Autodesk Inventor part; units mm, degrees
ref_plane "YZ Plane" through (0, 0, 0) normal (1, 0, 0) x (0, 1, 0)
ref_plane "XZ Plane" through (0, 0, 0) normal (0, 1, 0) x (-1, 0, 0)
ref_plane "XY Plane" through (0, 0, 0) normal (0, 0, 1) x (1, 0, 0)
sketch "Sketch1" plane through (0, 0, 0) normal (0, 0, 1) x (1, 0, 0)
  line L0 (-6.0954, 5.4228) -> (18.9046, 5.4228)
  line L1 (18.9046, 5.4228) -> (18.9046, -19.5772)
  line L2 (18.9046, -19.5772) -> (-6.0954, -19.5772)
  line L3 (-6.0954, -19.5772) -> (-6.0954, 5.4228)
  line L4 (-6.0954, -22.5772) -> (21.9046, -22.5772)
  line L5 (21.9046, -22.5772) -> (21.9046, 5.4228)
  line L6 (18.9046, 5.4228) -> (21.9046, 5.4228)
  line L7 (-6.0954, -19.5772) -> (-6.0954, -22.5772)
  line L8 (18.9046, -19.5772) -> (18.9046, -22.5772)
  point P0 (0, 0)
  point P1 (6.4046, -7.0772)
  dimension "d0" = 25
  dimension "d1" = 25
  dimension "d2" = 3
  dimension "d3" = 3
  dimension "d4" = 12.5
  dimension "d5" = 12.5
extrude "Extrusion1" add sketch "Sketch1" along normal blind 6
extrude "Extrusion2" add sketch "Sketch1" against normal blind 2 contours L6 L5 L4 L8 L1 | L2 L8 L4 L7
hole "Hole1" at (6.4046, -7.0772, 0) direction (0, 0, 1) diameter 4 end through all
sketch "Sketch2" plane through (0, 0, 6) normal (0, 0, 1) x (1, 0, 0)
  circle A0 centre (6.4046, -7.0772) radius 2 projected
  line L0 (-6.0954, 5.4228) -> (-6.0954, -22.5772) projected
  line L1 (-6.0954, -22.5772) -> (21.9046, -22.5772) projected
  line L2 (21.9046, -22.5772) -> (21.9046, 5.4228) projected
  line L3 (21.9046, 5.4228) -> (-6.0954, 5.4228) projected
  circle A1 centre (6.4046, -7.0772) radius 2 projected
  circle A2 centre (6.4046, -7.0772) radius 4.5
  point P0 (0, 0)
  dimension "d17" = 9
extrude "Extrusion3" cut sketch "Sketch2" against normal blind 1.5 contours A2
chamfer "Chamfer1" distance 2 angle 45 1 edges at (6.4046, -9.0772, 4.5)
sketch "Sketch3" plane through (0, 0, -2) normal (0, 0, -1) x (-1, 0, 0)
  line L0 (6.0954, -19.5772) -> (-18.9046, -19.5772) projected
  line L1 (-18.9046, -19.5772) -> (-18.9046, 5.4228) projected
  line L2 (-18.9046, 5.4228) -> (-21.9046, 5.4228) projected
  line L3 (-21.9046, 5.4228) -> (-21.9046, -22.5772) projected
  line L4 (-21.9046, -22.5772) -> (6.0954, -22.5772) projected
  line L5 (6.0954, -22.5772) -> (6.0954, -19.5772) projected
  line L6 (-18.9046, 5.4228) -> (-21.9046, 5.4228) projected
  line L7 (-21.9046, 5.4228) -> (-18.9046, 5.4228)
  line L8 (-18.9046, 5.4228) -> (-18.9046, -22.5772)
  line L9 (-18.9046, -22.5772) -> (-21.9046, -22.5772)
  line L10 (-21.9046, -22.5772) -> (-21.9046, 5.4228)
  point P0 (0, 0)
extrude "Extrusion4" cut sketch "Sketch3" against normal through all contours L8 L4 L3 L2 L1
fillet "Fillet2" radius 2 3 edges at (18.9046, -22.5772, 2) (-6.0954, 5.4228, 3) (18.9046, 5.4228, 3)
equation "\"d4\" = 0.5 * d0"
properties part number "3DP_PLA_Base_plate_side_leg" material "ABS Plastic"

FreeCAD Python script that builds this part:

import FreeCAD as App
import Part
import Sketcher
from FreeCAD import Vector


def edges_at(feature, points):
    """Names of the edges that pass closest to the given points."""
    edges = feature.Shape.Edges
    near = lambda p: min(range(len(edges)), key=lambda i: edges[i].distToShape(Part.Vertex(*p))[0])
    return sorted({f"Edge{near(p) + 1}" for p in points})


def add_polygon(sketch, points):
    """Adds a closed chain of lines whose ends are joined by coincident constraints."""
    first, n = sketch.GeometryCount, len(points)
    for a, b in zip(points, points[1:] + points[:1]):
        sketch.addGeometry(Part.LineSegment(App.Vector(*a, 0), App.Vector(*b, 0)), False)
    for i in range(n):
        sketch.addConstraint(Sketcher.Constraint("Coincident", first + i, 2, first + (i + 1) % n, 1))

doc = App.newDocument("Part")
body = doc.addObject("PartDesign::Body", "Body")

# Sketch on XY plane
sketch1 = body.newObject("Sketcher::SketchObject", "Sketch")
sketch1.AttachmentSupport = (doc.getObject("XY_Plane"), [""])
sketch1.MapMode = "FlatFace"
add_polygon(sketch1, [(-6, 5), (-6, -23), (22, -23), (22, 5)])  # lines 0-3
sketch1.addConstraint(Sketcher.Constraint("Vertical", 0))
sketch1.addConstraint(Sketcher.Constraint("Horizontal", 1))
sketch1.addConstraint(Sketcher.Constraint("Vertical", 2))
sketch1.addConstraint(Sketcher.Constraint("Horizontal", 3))
sketch1.addConstraint(Sketcher.Constraint("Equal", 3, 0))
sketch1.addConstraint(Sketcher.Constraint("DistanceX", 1, 1, 1, 2, 28.0))
sketch1.addConstraint(Sketcher.Constraint("DistanceX", 0, 2, -1, 1, 6.0954))
sketch1.addConstraint(Sketcher.Constraint("DistanceY", 0, 2, -1, 1, 22.5772))
pad1 = body.newObject("PartDesign::Pad", "Pad")
pad1.Profile = sketch1
pad1.Length = 6

# Sketch on XY plane
sketch2 = body.newObject("Sketcher::SketchObject", "Sketch001")
sketch2.AttachmentSupport = (doc.getObject("XY_Plane"), [""])
sketch2.MapMode = "FlatFace"
add_polygon(sketch2, [(21.9, 5.4), (18.9, 5.4), (18.9, -19.6), (-6.1, -19.6), (-6.1, -22.6), (21.9, -22.6)])  # lines 0-5
sketch2.addConstraint(Sketcher.Constraint("Horizontal", 0))
sketch2.addConstraint(Sketcher.Constraint("Vertical", 1))
sketch2.addConstraint(Sketcher.Constraint("Horizontal", 2))
sketch2.addConstraint(Sketcher.Constraint("Vertical", 3))
sketch2.addConstraint(Sketcher.Constraint("Horizontal", 4))
sketch2.addConstraint(Sketcher.Constraint("Vertical", 5))
sketch2.addConstraint(Sketcher.Constraint("Equal", 2, 1))
sketch2.addConstraint(Sketcher.Constraint("Equal", 0, 3))
sketch2.addConstraint(Sketcher.Constraint("DistanceX", 0, 2, 0, 1, 3.0))
sketch2.addConstraint(Sketcher.Constraint("DistanceX", 2, 2, 2, 1, 25.0))
sketch2.addConstraint(Sketcher.Constraint("DistanceX", -1, 1, 0, 2, 18.9046))
sketch2.addConstraint(Sketcher.Constraint("DistanceY", -1, 1, 0, 2, 5.4228))
pad2 = body.newObject("PartDesign::Pad", "Pad001")
pad2.Profile = sketch2
pad2.Length = 2
pad2.Reversed = True

# Sketch on XY plane
sketch3 = body.newObject("Sketcher::SketchObject", "Sketch002")
sketch3.AttachmentSupport = (doc.getObject("XY_Plane"), [""])
sketch3.MapMode = "FlatFace"
sketch3.addGeometry(Part.Circle(Vector(6.4, -7.1, 0), Vector(0, 0, 1), 2), False)
sketch3.addConstraint(Sketcher.Constraint("Diameter", 0, 4.0))
sketch3.addConstraint(Sketcher.Constraint("DistanceX", -1, 1, 0, 3, 6.4046))
sketch3.addConstraint(Sketcher.Constraint("DistanceY", 0, 3, -1, 1, 7.0772))
doc.recompute()
hole = body.newObject("PartDesign::Hole", "Hole")
hole.Profile = sketch3
hole.ThreadType = "None"
hole.Diameter = 4
hole.DepthType = "ThroughAll"
hole.Reversed = True

# Sketch on XY plane
sketch4 = body.newObject("Sketcher::SketchObject", "Sketch003")
sketch4.AttachmentSupport = (doc.getObject("XY_Plane"), [""])
sketch4.MapMode = "FlatFace"
sketch4.AttachmentOffset = App.Placement(Vector(0, 0, 6), App.Rotation())
sketch4.addGeometry(Part.Circle(Vector(6.4, -7.1, 0), Vector(0, 0, 1), 4.5), False)
sketch4.addGeometry(Part.Circle(Vector(6.4, -7.1, 0), Vector(0, 0, 1), 2), False)
sketch4.addConstraint(Sketcher.Constraint("Coincident", 1, 3, 0, 3))
sketch4.addConstraint(Sketcher.Constraint("Diameter", 0, 9.0))
sketch4.addConstraint(Sketcher.Constraint("Diameter", 1, 4.0))
sketch4.addConstraint(Sketcher.Constraint("DistanceX", -1, 1, 0, 3, 6.4046))
sketch4.addConstraint(Sketcher.Constraint("DistanceY", 0, 3, -1, 1, 7.0772))
pocket1 = body.newObject("PartDesign::Pocket", "Pocket")
pocket1.Profile = sketch4
pocket1.Length = 1.5
doc.recompute()

chamfer = body.newObject("PartDesign::Chamfer", "Chamfer")
chamfer.Base = (pocket1, edges_at(pocket1, [(6.405, -9.077, 4.5)]))
chamfer.Size = 2

# Sketch on XY plane
sketch5 = body.newObject("Sketcher::SketchObject", "Sketch004")
sketch5.AttachmentSupport = (doc.getObject("XY_Plane"), [""])
sketch5.MapMode = "FlatFace"
sketch5.AttachmentOffset = App.Placement(Vector(0, 0, -2), App.Rotation())
add_polygon(sketch5, [(18.9, -22.6), (18.9, 5.4), (21.9, 5.4), (21.9, -22.6)])  # lines 0-3
sketch5.addConstraint(Sketcher.Constraint("Vertical", 0))
sketch5.addConstraint(Sketcher.Constraint("Horizontal", 1))
sketch5.addConstraint(Sketcher.Constraint("Vertical", 2))
sketch5.addConstraint(Sketcher.Constraint("Horizontal", 3))
sketch5.addConstraint(Sketcher.Constraint("DistanceX", 1, 1, 1, 2, 3.0))
sketch5.addConstraint(Sketcher.Constraint("DistanceY", 0, 1, 0, 2, 28.0))
sketch5.addConstraint(Sketcher.Constraint("DistanceX", -1, 1, 0, 2, 18.9046))
sketch5.addConstraint(Sketcher.Constraint("DistanceY", -1, 1, 0, 2, 5.4228))
pocket2 = body.newObject("PartDesign::Pocket", "Pocket001")
pocket2.Profile = sketch5
pocket2.Type = "ThroughAll"
pocket2.Reversed = True
doc.recompute()

fillet = body.newObject("PartDesign::Fillet", "Fillet")
fillet.Base = (pocket2, edges_at(pocket2, [(18.905, -22.577, 2), (-6.095, 5.423, 3), (18.905, 5.423, 3)]))
fillet.Radius = 2

doc.recompute()
